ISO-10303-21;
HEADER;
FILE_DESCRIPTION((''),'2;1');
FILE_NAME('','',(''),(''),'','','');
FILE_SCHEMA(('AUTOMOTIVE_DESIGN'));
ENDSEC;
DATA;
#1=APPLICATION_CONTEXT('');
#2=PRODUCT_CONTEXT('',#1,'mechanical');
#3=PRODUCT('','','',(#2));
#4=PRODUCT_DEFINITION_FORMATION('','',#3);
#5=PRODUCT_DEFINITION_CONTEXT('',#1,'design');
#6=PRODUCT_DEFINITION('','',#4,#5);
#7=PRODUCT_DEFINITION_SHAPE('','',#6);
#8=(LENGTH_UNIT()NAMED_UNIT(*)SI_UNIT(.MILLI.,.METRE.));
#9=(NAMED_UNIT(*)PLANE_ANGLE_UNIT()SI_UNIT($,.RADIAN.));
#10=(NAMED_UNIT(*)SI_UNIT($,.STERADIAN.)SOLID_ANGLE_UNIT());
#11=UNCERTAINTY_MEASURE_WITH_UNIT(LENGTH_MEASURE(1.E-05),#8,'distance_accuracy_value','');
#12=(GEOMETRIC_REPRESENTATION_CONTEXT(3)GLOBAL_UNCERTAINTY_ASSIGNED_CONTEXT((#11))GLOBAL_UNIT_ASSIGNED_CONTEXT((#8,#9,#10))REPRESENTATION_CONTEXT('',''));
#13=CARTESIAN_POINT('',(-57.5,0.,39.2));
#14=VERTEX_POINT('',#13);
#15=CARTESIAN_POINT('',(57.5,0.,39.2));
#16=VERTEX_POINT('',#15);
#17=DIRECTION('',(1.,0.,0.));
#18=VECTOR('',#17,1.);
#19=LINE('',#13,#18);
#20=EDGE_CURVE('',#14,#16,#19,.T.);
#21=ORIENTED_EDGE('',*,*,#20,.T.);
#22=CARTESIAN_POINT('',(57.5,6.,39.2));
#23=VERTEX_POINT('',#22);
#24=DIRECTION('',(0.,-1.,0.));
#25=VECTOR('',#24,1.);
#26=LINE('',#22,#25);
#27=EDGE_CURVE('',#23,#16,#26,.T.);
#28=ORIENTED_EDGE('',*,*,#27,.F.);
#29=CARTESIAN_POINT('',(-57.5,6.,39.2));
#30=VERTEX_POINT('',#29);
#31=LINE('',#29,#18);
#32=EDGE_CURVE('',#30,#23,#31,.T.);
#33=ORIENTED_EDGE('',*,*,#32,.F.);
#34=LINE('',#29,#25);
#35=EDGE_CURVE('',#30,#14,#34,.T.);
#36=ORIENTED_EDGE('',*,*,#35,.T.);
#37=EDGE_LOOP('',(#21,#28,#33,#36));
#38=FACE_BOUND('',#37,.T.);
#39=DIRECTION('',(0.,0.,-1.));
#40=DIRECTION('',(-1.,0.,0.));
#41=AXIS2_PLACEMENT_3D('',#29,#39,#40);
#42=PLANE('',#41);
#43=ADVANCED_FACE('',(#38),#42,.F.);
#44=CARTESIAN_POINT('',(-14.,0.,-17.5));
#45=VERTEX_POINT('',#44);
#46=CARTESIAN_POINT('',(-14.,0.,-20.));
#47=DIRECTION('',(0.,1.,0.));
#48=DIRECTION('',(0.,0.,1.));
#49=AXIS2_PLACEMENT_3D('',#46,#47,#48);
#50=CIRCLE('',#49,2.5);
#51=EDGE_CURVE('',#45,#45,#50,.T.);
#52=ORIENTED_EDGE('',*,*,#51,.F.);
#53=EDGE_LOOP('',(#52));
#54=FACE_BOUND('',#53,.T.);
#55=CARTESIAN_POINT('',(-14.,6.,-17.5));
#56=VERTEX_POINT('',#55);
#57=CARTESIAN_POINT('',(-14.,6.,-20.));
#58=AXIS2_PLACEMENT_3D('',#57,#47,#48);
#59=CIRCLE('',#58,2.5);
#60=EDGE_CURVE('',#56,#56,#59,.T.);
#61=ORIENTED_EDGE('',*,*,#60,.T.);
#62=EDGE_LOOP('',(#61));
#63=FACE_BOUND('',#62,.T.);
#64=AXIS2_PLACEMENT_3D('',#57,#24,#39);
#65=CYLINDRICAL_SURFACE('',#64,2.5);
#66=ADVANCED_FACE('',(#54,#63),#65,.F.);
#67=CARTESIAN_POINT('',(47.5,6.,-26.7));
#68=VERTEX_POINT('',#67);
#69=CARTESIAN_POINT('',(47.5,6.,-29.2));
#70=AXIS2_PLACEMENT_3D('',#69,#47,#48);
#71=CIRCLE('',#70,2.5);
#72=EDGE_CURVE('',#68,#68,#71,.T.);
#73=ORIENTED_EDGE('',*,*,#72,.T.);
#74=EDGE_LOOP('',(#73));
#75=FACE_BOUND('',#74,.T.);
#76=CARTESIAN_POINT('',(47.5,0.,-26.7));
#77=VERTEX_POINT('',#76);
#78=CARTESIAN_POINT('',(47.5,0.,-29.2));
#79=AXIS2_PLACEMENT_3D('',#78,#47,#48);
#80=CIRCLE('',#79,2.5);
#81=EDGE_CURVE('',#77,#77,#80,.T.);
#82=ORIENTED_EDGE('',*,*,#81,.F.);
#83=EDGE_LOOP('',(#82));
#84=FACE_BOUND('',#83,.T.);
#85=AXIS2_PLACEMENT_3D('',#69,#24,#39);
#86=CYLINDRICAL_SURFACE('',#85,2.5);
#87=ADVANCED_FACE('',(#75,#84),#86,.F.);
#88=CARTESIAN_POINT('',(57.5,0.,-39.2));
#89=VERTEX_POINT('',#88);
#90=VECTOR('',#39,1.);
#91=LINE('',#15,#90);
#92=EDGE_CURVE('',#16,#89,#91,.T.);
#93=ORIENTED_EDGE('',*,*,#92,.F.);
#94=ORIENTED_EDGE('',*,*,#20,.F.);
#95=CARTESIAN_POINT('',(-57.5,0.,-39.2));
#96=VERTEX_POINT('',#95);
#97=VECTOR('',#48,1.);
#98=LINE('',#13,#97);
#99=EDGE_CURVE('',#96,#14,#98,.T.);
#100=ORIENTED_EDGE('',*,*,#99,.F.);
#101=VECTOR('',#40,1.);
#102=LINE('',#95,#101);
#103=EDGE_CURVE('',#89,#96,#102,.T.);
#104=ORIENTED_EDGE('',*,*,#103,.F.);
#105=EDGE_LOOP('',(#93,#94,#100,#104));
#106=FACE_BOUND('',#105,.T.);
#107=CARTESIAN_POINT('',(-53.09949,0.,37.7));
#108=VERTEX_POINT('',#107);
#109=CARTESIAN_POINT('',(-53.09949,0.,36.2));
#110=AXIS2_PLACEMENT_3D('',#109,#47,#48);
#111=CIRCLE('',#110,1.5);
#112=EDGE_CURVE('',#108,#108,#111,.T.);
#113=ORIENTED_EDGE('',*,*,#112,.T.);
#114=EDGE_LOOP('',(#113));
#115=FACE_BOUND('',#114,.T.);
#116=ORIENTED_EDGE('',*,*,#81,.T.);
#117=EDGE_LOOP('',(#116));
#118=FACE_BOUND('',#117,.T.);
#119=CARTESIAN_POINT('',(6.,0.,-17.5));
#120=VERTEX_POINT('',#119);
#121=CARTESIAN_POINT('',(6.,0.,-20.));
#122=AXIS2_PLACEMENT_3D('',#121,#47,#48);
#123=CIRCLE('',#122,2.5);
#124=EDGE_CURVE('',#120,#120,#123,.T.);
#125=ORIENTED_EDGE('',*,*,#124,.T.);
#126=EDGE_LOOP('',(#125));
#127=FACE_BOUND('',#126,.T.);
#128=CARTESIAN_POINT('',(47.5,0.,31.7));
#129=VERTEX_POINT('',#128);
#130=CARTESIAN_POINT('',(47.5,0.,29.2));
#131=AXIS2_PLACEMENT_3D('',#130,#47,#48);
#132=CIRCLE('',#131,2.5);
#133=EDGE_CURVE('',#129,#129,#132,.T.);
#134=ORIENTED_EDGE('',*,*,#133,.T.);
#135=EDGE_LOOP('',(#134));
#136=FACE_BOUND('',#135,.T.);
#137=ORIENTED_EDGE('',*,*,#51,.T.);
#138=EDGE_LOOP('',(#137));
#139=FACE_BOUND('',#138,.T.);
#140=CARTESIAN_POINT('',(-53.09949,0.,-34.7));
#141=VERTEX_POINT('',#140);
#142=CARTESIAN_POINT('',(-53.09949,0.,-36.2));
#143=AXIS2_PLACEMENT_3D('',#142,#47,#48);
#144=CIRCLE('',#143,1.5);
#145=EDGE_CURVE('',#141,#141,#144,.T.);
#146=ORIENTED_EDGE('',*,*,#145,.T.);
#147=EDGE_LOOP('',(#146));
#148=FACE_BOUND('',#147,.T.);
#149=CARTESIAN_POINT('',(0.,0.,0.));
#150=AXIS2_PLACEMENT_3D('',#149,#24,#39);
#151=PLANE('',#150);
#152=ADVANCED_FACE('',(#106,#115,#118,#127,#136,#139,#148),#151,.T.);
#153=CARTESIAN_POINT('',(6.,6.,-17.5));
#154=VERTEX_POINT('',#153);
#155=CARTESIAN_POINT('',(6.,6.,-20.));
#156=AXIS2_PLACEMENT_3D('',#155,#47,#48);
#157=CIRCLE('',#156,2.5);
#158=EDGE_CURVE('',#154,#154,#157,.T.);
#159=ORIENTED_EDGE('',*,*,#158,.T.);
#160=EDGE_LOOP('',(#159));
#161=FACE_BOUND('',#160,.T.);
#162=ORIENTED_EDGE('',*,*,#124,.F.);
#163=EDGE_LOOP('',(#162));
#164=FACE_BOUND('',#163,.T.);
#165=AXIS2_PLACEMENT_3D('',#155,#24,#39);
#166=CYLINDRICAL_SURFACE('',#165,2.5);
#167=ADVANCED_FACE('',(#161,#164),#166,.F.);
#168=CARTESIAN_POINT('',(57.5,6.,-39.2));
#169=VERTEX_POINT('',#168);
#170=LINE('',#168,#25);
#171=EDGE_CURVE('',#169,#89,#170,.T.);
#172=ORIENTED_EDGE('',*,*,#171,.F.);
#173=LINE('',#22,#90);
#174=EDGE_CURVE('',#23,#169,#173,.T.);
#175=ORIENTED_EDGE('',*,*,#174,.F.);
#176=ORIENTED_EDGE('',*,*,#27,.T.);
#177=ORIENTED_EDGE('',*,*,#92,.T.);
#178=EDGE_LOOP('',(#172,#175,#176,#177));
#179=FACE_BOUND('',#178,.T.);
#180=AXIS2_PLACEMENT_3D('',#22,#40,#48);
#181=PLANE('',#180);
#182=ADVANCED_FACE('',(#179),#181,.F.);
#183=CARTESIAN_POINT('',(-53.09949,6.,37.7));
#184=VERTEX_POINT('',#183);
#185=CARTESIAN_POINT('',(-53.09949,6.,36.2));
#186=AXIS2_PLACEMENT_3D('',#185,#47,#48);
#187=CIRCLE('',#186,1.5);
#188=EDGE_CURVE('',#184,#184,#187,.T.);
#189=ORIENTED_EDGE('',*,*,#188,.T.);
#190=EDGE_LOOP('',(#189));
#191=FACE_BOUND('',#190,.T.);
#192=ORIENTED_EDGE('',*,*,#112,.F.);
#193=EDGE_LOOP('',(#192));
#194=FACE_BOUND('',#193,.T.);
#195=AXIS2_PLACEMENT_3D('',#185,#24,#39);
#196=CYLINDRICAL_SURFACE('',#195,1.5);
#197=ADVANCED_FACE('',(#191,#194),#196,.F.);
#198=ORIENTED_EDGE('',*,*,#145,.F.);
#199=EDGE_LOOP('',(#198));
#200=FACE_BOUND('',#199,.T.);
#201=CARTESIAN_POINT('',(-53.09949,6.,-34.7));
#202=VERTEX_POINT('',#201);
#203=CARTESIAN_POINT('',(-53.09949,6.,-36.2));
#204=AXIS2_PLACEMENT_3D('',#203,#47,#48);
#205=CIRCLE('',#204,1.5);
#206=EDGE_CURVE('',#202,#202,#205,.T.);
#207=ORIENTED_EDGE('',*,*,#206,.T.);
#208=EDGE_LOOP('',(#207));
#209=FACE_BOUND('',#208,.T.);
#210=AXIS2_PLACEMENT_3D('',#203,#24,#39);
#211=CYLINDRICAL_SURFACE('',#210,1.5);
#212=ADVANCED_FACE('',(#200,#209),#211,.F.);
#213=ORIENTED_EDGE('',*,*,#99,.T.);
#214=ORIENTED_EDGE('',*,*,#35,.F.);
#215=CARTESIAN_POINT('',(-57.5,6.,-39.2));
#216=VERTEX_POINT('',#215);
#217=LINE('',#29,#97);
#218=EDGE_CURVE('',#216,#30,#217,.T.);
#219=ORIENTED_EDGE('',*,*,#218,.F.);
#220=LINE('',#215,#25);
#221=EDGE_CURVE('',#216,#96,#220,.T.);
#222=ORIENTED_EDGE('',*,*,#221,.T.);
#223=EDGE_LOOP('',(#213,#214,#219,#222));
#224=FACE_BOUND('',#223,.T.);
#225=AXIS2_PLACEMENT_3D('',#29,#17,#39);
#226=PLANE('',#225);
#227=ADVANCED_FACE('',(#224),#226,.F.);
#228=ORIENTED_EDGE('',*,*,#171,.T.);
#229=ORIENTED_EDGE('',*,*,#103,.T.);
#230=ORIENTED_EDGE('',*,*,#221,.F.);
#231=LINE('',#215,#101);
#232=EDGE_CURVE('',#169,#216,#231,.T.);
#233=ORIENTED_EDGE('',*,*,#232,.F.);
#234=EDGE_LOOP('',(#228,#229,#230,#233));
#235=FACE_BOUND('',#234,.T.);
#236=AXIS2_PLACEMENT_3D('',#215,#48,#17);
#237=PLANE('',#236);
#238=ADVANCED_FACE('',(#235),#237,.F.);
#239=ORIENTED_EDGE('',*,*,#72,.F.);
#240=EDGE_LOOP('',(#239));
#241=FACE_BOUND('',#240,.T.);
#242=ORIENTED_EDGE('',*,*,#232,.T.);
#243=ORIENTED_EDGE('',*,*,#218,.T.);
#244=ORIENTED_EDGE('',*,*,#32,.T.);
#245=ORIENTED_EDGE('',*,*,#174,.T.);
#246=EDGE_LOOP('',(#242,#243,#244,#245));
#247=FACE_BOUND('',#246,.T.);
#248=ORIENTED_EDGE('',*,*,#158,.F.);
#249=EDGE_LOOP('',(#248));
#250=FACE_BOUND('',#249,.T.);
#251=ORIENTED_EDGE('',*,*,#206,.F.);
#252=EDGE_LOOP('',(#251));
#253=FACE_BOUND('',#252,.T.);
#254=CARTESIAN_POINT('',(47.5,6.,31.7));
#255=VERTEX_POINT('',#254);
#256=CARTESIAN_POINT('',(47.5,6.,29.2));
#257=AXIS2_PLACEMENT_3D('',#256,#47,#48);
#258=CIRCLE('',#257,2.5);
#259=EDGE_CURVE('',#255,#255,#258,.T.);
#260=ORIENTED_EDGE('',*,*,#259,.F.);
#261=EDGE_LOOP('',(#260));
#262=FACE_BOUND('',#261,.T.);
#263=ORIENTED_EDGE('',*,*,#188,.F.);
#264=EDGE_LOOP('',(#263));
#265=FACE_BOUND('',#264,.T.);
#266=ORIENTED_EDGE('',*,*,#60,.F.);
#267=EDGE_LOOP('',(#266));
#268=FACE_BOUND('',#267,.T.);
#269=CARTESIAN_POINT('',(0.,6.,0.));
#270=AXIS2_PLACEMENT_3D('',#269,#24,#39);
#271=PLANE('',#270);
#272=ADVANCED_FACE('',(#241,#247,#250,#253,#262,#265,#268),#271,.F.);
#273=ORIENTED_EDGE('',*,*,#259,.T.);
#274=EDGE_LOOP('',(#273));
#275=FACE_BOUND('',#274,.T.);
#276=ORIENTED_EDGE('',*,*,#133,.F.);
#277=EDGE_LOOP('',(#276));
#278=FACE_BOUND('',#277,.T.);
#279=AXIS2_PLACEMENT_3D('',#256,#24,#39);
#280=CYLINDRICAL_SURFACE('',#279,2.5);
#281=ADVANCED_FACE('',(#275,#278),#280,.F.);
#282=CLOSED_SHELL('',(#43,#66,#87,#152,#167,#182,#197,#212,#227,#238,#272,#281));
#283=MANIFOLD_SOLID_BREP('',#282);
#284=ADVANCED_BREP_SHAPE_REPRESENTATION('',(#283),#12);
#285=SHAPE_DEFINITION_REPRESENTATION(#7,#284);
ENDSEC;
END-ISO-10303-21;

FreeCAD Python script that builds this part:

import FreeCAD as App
import Part
import Sketcher
from FreeCAD import Vector
Q = App.Units.Quantity


def add_polygon(sketch, points):
    """Adds a closed chain of lines whose ends are joined by coincident constraints."""
    first, n = sketch.GeometryCount, len(points)
    for a, b in zip(points, points[1:] + points[:1]):
        sketch.addGeometry(Part.LineSegment(App.Vector(*a, 0), App.Vector(*b, 0)), False)
    for i in range(n):
        sketch.addConstraint(Sketcher.Constraint("Coincident", first + i, 2, first + (i + 1) % n, 1))

doc = App.newDocument("Part")
body = doc.addObject("PartDesign::Body", "Body")

# Sketch on XZ plane
sketch1 = body.newObject("Sketcher::SketchObject", "Sketch")
sketch1.AttachmentSupport = (doc.getObject("XZ_Plane"), [""])
sketch1.MapMode = "FlatFace"
add_polygon(sketch1, [(-57.5, -39.2), (-57.5, 39.2), (57.5, 39.2), (57.5, -39.2)])  # lines 0-3
sketch1.addGeometry(Part.Circle(Vector(-53.1, 36.2, 0), Vector(0, 0, 1), 1.5), False)  # 4
sketch1.addGeometry(Part.Circle(Vector(47.5, 29.2, 0), Vector(0, 0, 1), 2.5), False)  # 5
sketch1.addGeometry(Part.Circle(Vector(-53.1, -36.2, 0), Vector(0, 0, 1), 1.5), False)  # 6
sketch1.addGeometry(Part.Circle(Vector(-14, -20, 0), Vector(0, 0, 1), 2.5), False)  # 7
sketch1.addGeometry(Part.Circle(Vector(6, -20, 0), Vector(0, 0, 1), 2.5), False)  # 8
sketch1.addGeometry(Part.Circle(Vector(47.5, -29.2, 0), Vector(0, 0, 1), 2.5), False)  # 9
sketch1.addConstraint(Sketcher.Constraint("Vertical", 0))
sketch1.addConstraint(Sketcher.Constraint("Horizontal", 1))
sketch1.addConstraint(Sketcher.Constraint("Vertical", 2))
sketch1.addConstraint(Sketcher.Constraint("Horizontal", 3))
sketch1.addConstraint(Sketcher.Constraint("Equal", 4, 6))
sketch1.addConstraint(Sketcher.Constraint("Equal", 5, 7))
sketch1.addConstraint(Sketcher.Constraint("Equal", 7, 8))
sketch1.addConstraint(Sketcher.Constraint("Equal", 8, 9))
sketch1.addConstraint(Sketcher.Constraint("Symmetric", 0, 2, 2, 2, -1, 1))
sketch1.addConstraint(Sketcher.Constraint("Symmetric", 4, 3, 6, 3, -1))
sketch1.addConstraint(Sketcher.Constraint("Symmetric", 5, 3, 9, 3, -1))
sketch1.addConstraint(Sketcher.Constraint("Horizontal", 7, 3, 8, 3))
sketch1.addConstraint(Sketcher.Constraint("Diameter", 4, Q("3 mm")))
sketch1.addConstraint(Sketcher.Constraint("Diameter", 5, Q("5 mm")))
sketch1.addConstraint(Sketcher.Constraint("DistanceX", 1, 1, 1, 2, Q("115 mm")))
sketch1.addConstraint(Sketcher.Constraint("DistanceY", 0, 1, 0, 2, Q("78.4 mm")))
sketch1.addConstraint(Sketcher.Constraint("DistanceX", 7, 3, -1, 1, Q("14 mm")))
sketch1.addConstraint(Sketcher.Constraint("DistanceY", 7, 3, -1, 1, Q("20 mm")))
sketch1.addConstraint(Sketcher.Constraint("DistanceX", -1, 1, 8, 3, Q("6 mm")))
sketch1.addConstraint(Sketcher.Constraint("DistanceY", 5, 3, 4, 3, Q("7 mm")))
sketch1.addConstraint(Sketcher.Constraint("DistanceY", 4, 3, 0, 2, Q("3 mm")))
sketch1.addConstraint(Sketcher.Constraint("DistanceX", 0, 2, 5, 3, Q("105 mm")))
sketch1.addConstraint(Sketcher.Constraint("DistanceX", 4, 3, -1, 1, Q("53.09949 mm")))
pad1 = body.newObject("PartDesign::Pad", "Pad")
pad1.Profile = sketch1
pad1.Length = 6
pad1.Reversed = True

doc.recompute()
